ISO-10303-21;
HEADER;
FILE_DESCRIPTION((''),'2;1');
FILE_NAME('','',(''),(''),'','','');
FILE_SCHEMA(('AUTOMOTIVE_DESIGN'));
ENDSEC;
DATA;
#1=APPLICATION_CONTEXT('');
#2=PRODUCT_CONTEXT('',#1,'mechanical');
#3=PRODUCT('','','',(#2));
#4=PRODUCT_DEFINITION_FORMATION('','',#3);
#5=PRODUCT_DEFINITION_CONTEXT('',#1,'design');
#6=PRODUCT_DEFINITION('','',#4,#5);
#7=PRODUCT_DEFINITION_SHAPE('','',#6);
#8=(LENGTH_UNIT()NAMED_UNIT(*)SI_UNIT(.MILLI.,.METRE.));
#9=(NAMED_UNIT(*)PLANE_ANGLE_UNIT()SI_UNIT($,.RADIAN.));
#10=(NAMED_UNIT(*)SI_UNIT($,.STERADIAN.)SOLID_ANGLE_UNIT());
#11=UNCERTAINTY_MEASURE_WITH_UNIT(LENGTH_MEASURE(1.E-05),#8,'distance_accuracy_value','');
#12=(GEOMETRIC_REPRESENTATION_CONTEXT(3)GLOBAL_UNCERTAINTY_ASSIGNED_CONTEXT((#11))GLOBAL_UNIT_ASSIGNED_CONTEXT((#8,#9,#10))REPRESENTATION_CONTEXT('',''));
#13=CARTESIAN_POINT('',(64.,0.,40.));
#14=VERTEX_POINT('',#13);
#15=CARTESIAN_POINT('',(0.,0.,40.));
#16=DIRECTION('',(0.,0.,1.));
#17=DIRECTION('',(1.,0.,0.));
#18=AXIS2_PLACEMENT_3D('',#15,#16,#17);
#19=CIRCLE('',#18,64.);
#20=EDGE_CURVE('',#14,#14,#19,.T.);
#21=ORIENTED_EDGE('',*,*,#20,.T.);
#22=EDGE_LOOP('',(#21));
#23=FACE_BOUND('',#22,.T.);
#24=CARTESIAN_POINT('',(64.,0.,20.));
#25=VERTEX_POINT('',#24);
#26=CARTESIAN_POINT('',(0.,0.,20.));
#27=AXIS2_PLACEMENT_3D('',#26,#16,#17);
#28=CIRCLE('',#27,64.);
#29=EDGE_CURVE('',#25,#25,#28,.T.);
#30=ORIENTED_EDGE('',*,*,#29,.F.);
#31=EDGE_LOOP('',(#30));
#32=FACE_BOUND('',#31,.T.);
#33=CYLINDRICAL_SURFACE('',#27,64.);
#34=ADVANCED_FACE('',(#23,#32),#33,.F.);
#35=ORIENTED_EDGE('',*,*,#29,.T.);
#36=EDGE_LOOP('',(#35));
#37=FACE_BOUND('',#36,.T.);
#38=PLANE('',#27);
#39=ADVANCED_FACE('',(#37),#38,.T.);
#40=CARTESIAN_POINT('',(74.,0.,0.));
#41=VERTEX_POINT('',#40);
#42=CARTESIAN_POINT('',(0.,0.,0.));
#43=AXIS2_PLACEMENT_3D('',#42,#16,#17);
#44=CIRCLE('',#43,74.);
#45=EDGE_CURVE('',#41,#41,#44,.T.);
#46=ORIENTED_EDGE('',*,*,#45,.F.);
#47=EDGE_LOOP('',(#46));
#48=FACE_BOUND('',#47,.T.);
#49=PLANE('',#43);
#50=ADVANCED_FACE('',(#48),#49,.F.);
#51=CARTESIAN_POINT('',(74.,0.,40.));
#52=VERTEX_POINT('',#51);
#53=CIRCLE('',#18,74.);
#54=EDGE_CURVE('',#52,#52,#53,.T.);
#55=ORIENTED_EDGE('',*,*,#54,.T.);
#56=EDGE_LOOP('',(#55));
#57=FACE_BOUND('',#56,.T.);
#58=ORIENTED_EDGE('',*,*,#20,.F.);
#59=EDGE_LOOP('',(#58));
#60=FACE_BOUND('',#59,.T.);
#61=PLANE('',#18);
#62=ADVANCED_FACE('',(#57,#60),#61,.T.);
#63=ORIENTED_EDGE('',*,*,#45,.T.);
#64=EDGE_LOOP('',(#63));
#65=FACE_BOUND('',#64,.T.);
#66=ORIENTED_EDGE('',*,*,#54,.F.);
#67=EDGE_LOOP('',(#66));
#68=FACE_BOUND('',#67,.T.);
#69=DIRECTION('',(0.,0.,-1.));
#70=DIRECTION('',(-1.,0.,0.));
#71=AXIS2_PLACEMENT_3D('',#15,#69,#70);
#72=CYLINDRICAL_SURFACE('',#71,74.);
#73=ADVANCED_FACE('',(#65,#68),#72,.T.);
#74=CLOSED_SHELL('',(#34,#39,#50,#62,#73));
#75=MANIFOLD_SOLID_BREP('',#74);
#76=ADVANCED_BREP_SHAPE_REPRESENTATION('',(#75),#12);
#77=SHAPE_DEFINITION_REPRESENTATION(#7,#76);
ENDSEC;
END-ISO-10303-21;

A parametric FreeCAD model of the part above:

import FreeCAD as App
import Part
import Sketcher

doc = App.newDocument("Part")
body = doc.addObject("PartDesign::Body", "Body")

# Sketch on XY plane
sketch1 = doc.addObject("Sketcher::SketchObject", "Sketch")
body.addObject(sketch1)
sketch1.AttachmentSupport = (doc.XY_Plane, [""])
sketch1.MapMode = "FlatFace"
sketch1.addGeometry(Part.Circle(App.Vector(0, 0, 0), App.Vector(0, 0, 1), 74), False)
sketch1.addConstraint([
    Sketcher.Constraint("Coincident", 0, 3, -1, 1),
    Sketcher.Constraint("Diameter", 0, 148.0),
])
pad1 = doc.addObject("PartDesign::Pad", "Pad")
body.addObject(pad1)
pad1.Profile = sketch1
pad1.Length = 40

# Sketch on XY plane
sketch2 = doc.addObject("Sketcher::SketchObject", "Sketch001")
body.addObject(sketch2)
sketch2.AttachmentSupport = (doc.XY_Plane, [""])
sketch2.MapMode = "FlatFace"
sketch2.AttachmentOffset = App.Placement(App.Vector(0, 0, 40), App.Rotation())
sketch2.addGeometry(Part.Circle(App.Vector(0, 0, 0), App.Vector(0, 0, 1), 64), False)
sketch2.addConstraint([
    Sketcher.Constraint("Coincident", 0, 3, -1, 1),
    Sketcher.Constraint("Diameter", 0, 128.0),
])
pocket1 = doc.addObject("PartDesign::Pocket", "Pocket")
body.addObject(pocket1)
pocket1.Profile = sketch2
pocket1.Length = 20

doc.recompute()
